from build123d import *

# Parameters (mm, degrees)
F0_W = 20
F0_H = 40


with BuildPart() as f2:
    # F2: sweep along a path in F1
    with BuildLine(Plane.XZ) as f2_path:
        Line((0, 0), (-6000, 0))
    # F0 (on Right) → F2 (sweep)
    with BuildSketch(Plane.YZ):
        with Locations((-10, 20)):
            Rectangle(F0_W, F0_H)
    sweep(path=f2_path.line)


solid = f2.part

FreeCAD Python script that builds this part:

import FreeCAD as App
import Part
import Sketcher

V = App.Vector

doc = App.newDocument("Part")
body = doc.addObject("PartDesign::Body", "Body")

# Sketch on YZ plane
sketch1 = body.newObject("Sketcher::SketchObject", "Sketch")
sketch1.AttachmentSupport = (doc.getObject("YZ_Plane"), [""])
sketch1.MapMode = "FlatFace"
sketch1.addGeometry([
    Part.LineSegment(V(-20, 40, 0), V(-20, 0, 0)),
    Part.LineSegment(V(-20, 0, 0), V(0, 0, 0)),
    Part.LineSegment(V(0, 0, 0), V(0, 40, 0)),
    Part.LineSegment(V(0, 40, 0), V(-20, 40, 0)),
], False)
sketch1.addConstraint([
    Sketcher.Constraint("Coincident", 0, 2, 1, 1),
    Sketcher.Constraint("Coincident", 1, 2, 2, 1),
    Sketcher.Constraint("Coincident", 2, 2, 3, 1),
    Sketcher.Constraint("Coincident", 3, 2, 0, 1),
    Sketcher.Constraint("Vertical", 0),
    Sketcher.Constraint("Horizontal", 1),
    Sketcher.Constraint("Vertical", 2),
    Sketcher.Constraint("Horizontal", 3),
    Sketcher.Constraint("Coincident", 1, 2, -1, 1),
    Sketcher.Constraint("DistanceX", 1, 1, 1, 2, 20.0),
    Sketcher.Constraint("DistanceY", 0, 2, 0, 1, 40.0),
])

# Sketch on XY plane
sketch2 = body.newObject("Sketcher::SketchObject", "Sketch001")
sketch2.AttachmentSupport = (doc.getObject("XY_Plane"), [""])
sketch2.MapMode = "FlatFace"
sketch2.addGeometry(Part.LineSegment(V(0, 0, 0), V(-6000, 0, 0)), False)
sketch2.addConstraint([
    Sketcher.Constraint("Horizontal", 0),
    Sketcher.Constraint("Coincident", 0, 1, -1, 1),
    Sketcher.Constraint("DistanceX", 0, 2, 0, 1, 6000.0),
])
doc.recompute()

additivepipe = body.newObject("PartDesign::AdditivePipe", "AdditivePipe")
additivepipe.Profile = sketch1
additivepipe.Spine = (sketch2, ["Edge1"])

doc.recompute()
